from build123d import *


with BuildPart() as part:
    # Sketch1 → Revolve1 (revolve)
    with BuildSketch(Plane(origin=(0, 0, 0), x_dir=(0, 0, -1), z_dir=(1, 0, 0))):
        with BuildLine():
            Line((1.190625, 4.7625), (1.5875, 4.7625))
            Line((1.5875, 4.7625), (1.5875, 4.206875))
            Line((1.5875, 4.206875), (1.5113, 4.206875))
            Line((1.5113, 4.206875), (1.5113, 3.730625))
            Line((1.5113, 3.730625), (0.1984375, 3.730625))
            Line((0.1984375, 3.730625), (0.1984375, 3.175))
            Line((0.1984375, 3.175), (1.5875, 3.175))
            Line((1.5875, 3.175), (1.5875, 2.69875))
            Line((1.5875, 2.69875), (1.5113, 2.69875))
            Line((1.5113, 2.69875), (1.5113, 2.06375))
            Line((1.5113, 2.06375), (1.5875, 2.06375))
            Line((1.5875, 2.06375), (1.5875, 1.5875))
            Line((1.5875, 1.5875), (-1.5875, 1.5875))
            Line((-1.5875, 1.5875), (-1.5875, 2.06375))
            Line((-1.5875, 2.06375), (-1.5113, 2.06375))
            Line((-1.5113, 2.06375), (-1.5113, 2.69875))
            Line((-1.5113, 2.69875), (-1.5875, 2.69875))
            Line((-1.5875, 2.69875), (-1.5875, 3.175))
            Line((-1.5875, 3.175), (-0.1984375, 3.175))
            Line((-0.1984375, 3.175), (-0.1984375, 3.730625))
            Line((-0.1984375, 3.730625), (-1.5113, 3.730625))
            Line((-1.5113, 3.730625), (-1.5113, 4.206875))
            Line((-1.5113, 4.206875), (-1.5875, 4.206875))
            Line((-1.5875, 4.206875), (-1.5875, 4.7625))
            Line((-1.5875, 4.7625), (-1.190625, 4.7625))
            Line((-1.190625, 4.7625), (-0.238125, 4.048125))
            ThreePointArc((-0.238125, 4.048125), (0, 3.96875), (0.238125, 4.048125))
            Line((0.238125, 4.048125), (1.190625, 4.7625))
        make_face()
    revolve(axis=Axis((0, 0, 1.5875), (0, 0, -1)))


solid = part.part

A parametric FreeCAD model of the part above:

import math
import FreeCAD as App
import Part
import Sketcher
Q = App.Units.Quantity

doc = App.newDocument("Part")
body = doc.addObject("PartDesign::Body", "Body")

sketch1 = body.newObject("Sketcher::SketchObject", "Sketch")
sketch1.AttachmentSupport = (doc.getObject("YZ_Plane"), [""])
sketch1.MapMode = "FlatFace"
sketch1.addGeometry([
    Part.LineSegment(App.Vector(4.76, -1.59, 0), App.Vector(4.76, -1.19, 0)),
    Part.LineSegment(App.Vector(4.76, -1.19, 0), App.Vector(4.05, -0.24, 0)),
    Part.ArcOfCircle(Part.Circle(App.Vector(4.37, 0, 0), App.Vector(0, 0, 1), 0.4), math.radians(143), math.radians(217)),
    Part.LineSegment(App.Vector(4.05, 0.24, 0), App.Vector(4.76, 1.19, 0)),
    Part.LineSegment(App.Vector(4.76, 1.19, 0), App.Vector(4.76, 1.59, 0)),
    Part.LineSegment(App.Vector(4.76, 1.59, 0), App.Vector(4.21, 1.59, 0)),
    Part.LineSegment(App.Vector(4.21, 1.59, 0), App.Vector(4.21, 1.51, 0)),
    Part.LineSegment(App.Vector(4.21, 1.51, 0), App.Vector(3.73, 1.51, 0)),
    Part.LineSegment(App.Vector(3.73, 1.51, 0), App.Vector(3.73, 0.2, 0)),
    Part.LineSegment(App.Vector(3.73, 0.2, 0), App.Vector(3.17, 0.2, 0)),
    Part.LineSegment(App.Vector(3.17, 0.2, 0), App.Vector(3.17, 1.59, 0)),
    Part.LineSegment(App.Vector(3.17, 1.59, 0), App.Vector(2.7, 1.59, 0)),
    Part.LineSegment(App.Vector(2.7, 1.59, 0), App.Vector(2.7, 1.51, 0)),
    Part.LineSegment(App.Vector(2.7, 1.51, 0), App.Vector(2.06, 1.51, 0)),
    Part.LineSegment(App.Vector(2.06, 1.51, 0), App.Vector(2.06, 1.59, 0)),
    Part.LineSegment(App.Vector(2.06, 1.59, 0), App.Vector(1.59, 1.59, 0)),
    Part.LineSegment(App.Vector(1.59, 1.59, 0), App.Vector(1.59, -1.59, 0)),
    Part.LineSegment(App.Vector(1.59, -1.59, 0), App.Vector(2.06, -1.59, 0)),
    Part.LineSegment(App.Vector(2.06, -1.59, 0), App.Vector(2.06, -1.51, 0)),
    Part.LineSegment(App.Vector(2.06, -1.51, 0), App.Vector(2.7, -1.51, 0)),
    Part.LineSegment(App.Vector(2.7, -1.51, 0), App.Vector(2.7, -1.59, 0)),
    Part.LineSegment(App.Vector(2.7, -1.59, 0), App.Vector(3.17, -1.59, 0)),
    Part.LineSegment(App.Vector(3.17, -1.59, 0), App.Vector(3.17, -0.2, 0)),
    Part.LineSegment(App.Vector(3.17, -0.2, 0), App.Vector(3.73, -0.2, 0)),
    Part.LineSegment(App.Vector(3.73, -0.2, 0), App.Vector(3.73, -1.51, 0)),
    Part.LineSegment(App.Vector(3.73, -1.51, 0), App.Vector(4.21, -1.51, 0)),
    Part.LineSegment(App.Vector(4.21, -1.51, 0), App.Vector(4.21, -1.59, 0)),
    Part.LineSegment(App.Vector(4.21, -1.59, 0), App.Vector(4.76, -1.59, 0)),
], False)
sketch1.addConstraint([
    Sketcher.Constraint("Coincident", 0, 2, 1, 1),
    Sketcher.Constraint("Tangent", 1, 2, 2, 2),
    Sketcher.Constraint("Tangent", 2, 1, 3, 1),
    Sketcher.Constraint("Coincident", 3, 2, 4, 1),
    Sketcher.Constraint("Coincident", 4, 2, 5, 1),
    Sketcher.Constraint("Coincident", 5, 2, 6, 1),
    Sketcher.Constraint("Coincident", 6, 2, 7, 1),
    Sketcher.Constraint("Coincident", 7, 2, 8, 1),
    Sketcher.Constraint("Coincident", 8, 2, 9, 1),
    Sketcher.Constraint("Coincident", 9, 2, 10, 1),
    Sketcher.Constraint("Coincident", 10, 2, 11, 1),
    Sketcher.Constraint("Coincident", 11, 2, 12, 1),
    Sketcher.Constraint("Coincident", 12, 2, 13, 1),
    Sketcher.Constraint("Coincident", 13, 2, 14, 1),
    Sketcher.Constraint("Coincident", 14, 2, 15, 1),
    Sketcher.Constraint("Coincident", 15, 2, 16, 1),
    Sketcher.Constraint("Coincident", 16, 2, 17, 1),
    Sketcher.Constraint("Coincident", 17, 2, 18, 1),
    Sketcher.Constraint("Coincident", 18, 2, 19, 1),
    Sketcher.Constraint("Coincident", 19, 2, 20, 1),
    Sketcher.Constraint("Coincident", 20, 2, 21, 1),
    Sketcher.Constraint("Coincident", 21, 2, 22, 1),
    Sketcher.Constraint("Coincident", 22, 2, 23, 1),
    Sketcher.Constraint("Coincident", 23, 2, 24, 1),
    Sketcher.Constraint("Coincident", 24, 2, 25, 1),
    Sketcher.Constraint("Coincident", 25, 2, 26, 1),
    Sketcher.Constraint("Coincident", 26, 2, 27, 1),
    Sketcher.Constraint("Coincident", 27, 2, 0, 1),
    Sketcher.Constraint("Vertical", 0),
    Sketcher.Constraint("Vertical", 4),
    Sketcher.Constraint("Horizontal", 5),
    Sketcher.Constraint("Vertical", 6),
    Sketcher.Constraint("Horizontal", 7),
    Sketcher.Constraint("Vertical", 8),
    Sketcher.Constraint("Horizontal", 9),
    Sketcher.Constraint("Vertical", 10),
    Sketcher.Constraint("Horizontal", 11),
    Sketcher.Constraint("Vertical", 12),
    Sketcher.Constraint("Horizontal", 13),
    Sketcher.Constraint("Vertical", 14),
    Sketcher.Constraint("Horizontal", 15),
    Sketcher.Constraint("Vertical", 16),
    Sketcher.Constraint("Horizontal", 17),
    Sketcher.Constraint("Vertical", 18),
    Sketcher.Constraint("Horizontal", 19),
    Sketcher.Constraint("Vertical", 20),
    Sketcher.Constraint("Horizontal", 21),
    Sketcher.Constraint("Vertical", 22),
    Sketcher.Constraint("Horizontal", 23),
    Sketcher.Constraint("Vertical", 24),
    Sketcher.Constraint("Horizontal", 25),
    Sketcher.Constraint("Vertical", 26),
    Sketcher.Constraint("Horizontal", 27),
    Sketcher.Constraint("Symmetric", 1, 2, 2, 1, -1),
    Sketcher.Constraint("Symmetric", 14, 2, 17, 2, -1),
    Sketcher.Constraint("Symmetric", 12, 2, 19, 2, -1),
    Sketcher.Constraint("Symmetric", 10, 2, 21, 2, -1),
    Sketcher.Constraint("Symmetric", 8, 2, 23, 2, -1),
    Sketcher.Constraint("Symmetric", 6, 2, 25, 2, -1),
    Sketcher.Constraint("Symmetric", 4, 2, 27, 2, -1),
    Sketcher.Constraint("Horizontal", 5, 2, 10, 2),
    Sketcher.Constraint("Horizontal", 7, 2, 12, 2),
    Sketcher.Constraint("Horizontal", 11, 2, 14, 2),
    Sketcher.Constraint("Equal", 5, 9),
    Sketcher.Constraint("Equal", 7, 11),
    Sketcher.Constraint("Equal", 11, 15),
    Sketcher.Constraint("Radius", 2, Q("0.015625 in")),
    Sketcher.Constraint("DistanceX", 13, 2, 13, 1, Q("0.025 in")),
    Sketcher.Constraint("DistanceY", 0, 1, 0, 2, Q("0.015625 in")),
    Sketcher.Constraint("DistanceY", 6, 2, 6, 1, Q("0.003 in")),
    Sketcher.Constraint("DistanceY", 16, 2, 16, 1, Q("0.125 in")),
    Sketcher.Constraint("Distance", 1, Q("0.046875 in")),
    Sketcher.Constraint("DistanceX", -1, 1, 2, 3, Q("0.171875 in")),
    Sketcher.Constraint("DistanceX", -1, 1, 9, 2, Q("0.125 in")),
    Sketcher.Constraint("DistanceX", -1, 1, 15, 2, Q("0.0625 in")),
    Sketcher.Constraint("DistanceY", 22, 2, 9, 2, Q("0.015625 in")),
])
revolution = body.newObject("PartDesign::Revolution", "Revolution")
revolution.Profile = sketch1
revolution.ReferenceAxis = (sketch1, ["V_Axis"])
revolution.Angle = 360

doc.recompute()
